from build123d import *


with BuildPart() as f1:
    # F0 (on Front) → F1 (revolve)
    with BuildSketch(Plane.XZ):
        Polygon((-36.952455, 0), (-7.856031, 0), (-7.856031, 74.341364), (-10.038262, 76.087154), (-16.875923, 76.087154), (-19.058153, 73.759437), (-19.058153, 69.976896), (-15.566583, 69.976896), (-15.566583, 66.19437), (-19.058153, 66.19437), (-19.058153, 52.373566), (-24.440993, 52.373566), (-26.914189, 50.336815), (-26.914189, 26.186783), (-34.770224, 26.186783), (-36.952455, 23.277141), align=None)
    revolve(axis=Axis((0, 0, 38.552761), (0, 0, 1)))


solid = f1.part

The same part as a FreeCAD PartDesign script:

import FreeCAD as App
import Part
import Sketcher
from FreeCAD import Vector

doc = App.newDocument("Part")
body = doc.addObject("PartDesign::Body", "Body")

# Sketch on XZ plane
sketch1 = body.newObject("Sketcher::SketchObject", "Sketch")
sketch1.AttachmentSupport = (doc.getObject("XZ_Plane"), [""])
sketch1.MapMode = "FlatFace"
sketch1.addGeometry([
    Part.LineSegment(Vector(-37, 0, 0), Vector(-7.9, 0, 0)),  # 0
    Part.LineSegment(Vector(-7.9, 0, 0), Vector(-7.9, 74.3, 0)),  # 1
    Part.LineSegment(Vector(-7.9, 74.3, 0), Vector(-10, 76.1, 0)),  # 2
    Part.LineSegment(Vector(-10, 76.1, 0), Vector(-16.9, 76.1, 0)),  # 3
    Part.LineSegment(Vector(-16.9, 76.1, 0), Vector(-19.1, 73.8, 0)),  # 4
    Part.LineSegment(Vector(-19.1, 73.8, 0), Vector(-19.1, 70, 0)),  # 5
    Part.LineSegment(Vector(-19.1, 70, 0), Vector(-15.6, 70, 0)),  # 6
    Part.LineSegment(Vector(-15.6, 70, 0), Vector(-15.6, 66.2, 0)),  # 7
    Part.LineSegment(Vector(-15.6, 66.2, 0), Vector(-19.1, 66.2, 0)),  # 8
    Part.LineSegment(Vector(-19.1, 66.2, 0), Vector(-19.1, 52.4, 0)),  # 9
    Part.LineSegment(Vector(-19.1, 52.4, 0), Vector(-24.4, 52.4, 0)),  # 10
    Part.LineSegment(Vector(-24.4, 52.4, 0), Vector(-26.9, 50.3, 0)),  # 11
    Part.LineSegment(Vector(-26.9, 50.3, 0), Vector(-26.9, 26.2, 0)),  # 12
    Part.LineSegment(Vector(-26.9, 26.2, 0), Vector(-34.8, 26.2, 0)),  # 13
    Part.LineSegment(Vector(-34.8, 26.2, 0), Vector(-37, 23.3, 0)),  # 14
    Part.LineSegment(Vector(-37, 23.3, 0), Vector(-37, 0, 0)),  # 15
], False)
sketch1.addConstraint([
    Sketcher.Constraint("Coincident", 0, 2, 1, 1),
    Sketcher.Constraint("Coincident", 1, 2, 2, 1),
    Sketcher.Constraint("Coincident", 2, 2, 3, 1),
    Sketcher.Constraint("Coincident", 3, 2, 4, 1),
    Sketcher.Constraint("Coincident", 4, 2, 5, 1),
    Sketcher.Constraint("Coincident", 5, 2, 6, 1),
    Sketcher.Constraint("Coincident", 6, 2, 7, 1),
    Sketcher.Constraint("Coincident", 7, 2, 8, 1),
    Sketcher.Constraint("Coincident", 8, 2, 9, 1),
    Sketcher.Constraint("Coincident", 9, 2, 10, 1),
    Sketcher.Constraint("Coincident", 10, 2, 11, 1),
    Sketcher.Constraint("Coincident", 11, 2, 12, 1),
    Sketcher.Constraint("Coincident", 12, 2, 13, 1),
    Sketcher.Constraint("Coincident", 13, 2, 14, 1),
    Sketcher.Constraint("Coincident", 14, 2, 15, 1),
    Sketcher.Constraint("Coincident", 15, 2, 0, 1),
    Sketcher.Constraint("Horizontal", 0),
    Sketcher.Constraint("Vertical", 1),
    Sketcher.Constraint("Horizontal", 3),
    Sketcher.Constraint("Vertical", 5),
    Sketcher.Constraint("Horizontal", 6),
    Sketcher.Constraint("Vertical", 7),
    Sketcher.Constraint("Horizontal", 8),
    Sketcher.Constraint("Vertical", 9),
    Sketcher.Constraint("Horizontal", 10),
    Sketcher.Constraint("Vertical", 12),
    Sketcher.Constraint("Horizontal", 13),
    Sketcher.Constraint("Vertical", 15),
    Sketcher.Constraint("PointOnObject", 0, 2, -1),
    Sketcher.Constraint("Vertical", 5, 2, 8, 2),
    Sketcher.Constraint("DistanceX", 3, 2, 3, 1, 6.837661),
    Sketcher.Constraint("DistanceX", 6, 1, 6, 2, 3.49157),
    Sketcher.Constraint("DistanceX", 10, 2, 10, 1, 5.38284),
    Sketcher.Constraint("DistanceY", 5, 2, 5, 1, 3.782541),
    Sketcher.Constraint("DistanceY", 15, 2, 15, 1, 23.277141),
    Sketcher.Constraint("DistanceX", 14, 2, 9, 2, 17.894302),
    Sketcher.Constraint("DistanceX", 0, 1, 0, 2, 29.096424),
    Sketcher.Constraint("DistanceX", 13, 2, 13, 1, 7.856035),
    Sketcher.Constraint("DistanceY", 1, 1, 1, 2, 74.341364),
    Sketcher.Constraint("DistanceY", 7, 2, 7, 1, 3.782526),
    Sketcher.Constraint("DistanceY", 9, 2, 9, 1, 13.820804),
    Sketcher.Constraint("DistanceY", 12, 2, 12, 1, 24.150032),
    Sketcher.Constraint("DistanceX", 0, 2, -1, 1, 7.856031),
    Sketcher.Constraint("DistanceY", -1, 1, 7, 2, 66.19437),
    Sketcher.Constraint("DistanceX", 11, 2, -1, 1, 26.914189),
    Sketcher.Constraint("DistanceX", 2, 2, 1, 2, 2.182231),
    Sketcher.Constraint("DistanceY", 1, 2, 2, 2, 1.74579),
    Sketcher.Constraint("DistanceY", 11, 2, 10, 2, 2.036751),
])
revolution = body.newObject("PartDesign::Revolution", "Revolution")
revolution.Profile = sketch1
revolution.ReferenceAxis = (sketch1, ["V_Axis"])
revolution.Angle = 360

doc.recompute()
